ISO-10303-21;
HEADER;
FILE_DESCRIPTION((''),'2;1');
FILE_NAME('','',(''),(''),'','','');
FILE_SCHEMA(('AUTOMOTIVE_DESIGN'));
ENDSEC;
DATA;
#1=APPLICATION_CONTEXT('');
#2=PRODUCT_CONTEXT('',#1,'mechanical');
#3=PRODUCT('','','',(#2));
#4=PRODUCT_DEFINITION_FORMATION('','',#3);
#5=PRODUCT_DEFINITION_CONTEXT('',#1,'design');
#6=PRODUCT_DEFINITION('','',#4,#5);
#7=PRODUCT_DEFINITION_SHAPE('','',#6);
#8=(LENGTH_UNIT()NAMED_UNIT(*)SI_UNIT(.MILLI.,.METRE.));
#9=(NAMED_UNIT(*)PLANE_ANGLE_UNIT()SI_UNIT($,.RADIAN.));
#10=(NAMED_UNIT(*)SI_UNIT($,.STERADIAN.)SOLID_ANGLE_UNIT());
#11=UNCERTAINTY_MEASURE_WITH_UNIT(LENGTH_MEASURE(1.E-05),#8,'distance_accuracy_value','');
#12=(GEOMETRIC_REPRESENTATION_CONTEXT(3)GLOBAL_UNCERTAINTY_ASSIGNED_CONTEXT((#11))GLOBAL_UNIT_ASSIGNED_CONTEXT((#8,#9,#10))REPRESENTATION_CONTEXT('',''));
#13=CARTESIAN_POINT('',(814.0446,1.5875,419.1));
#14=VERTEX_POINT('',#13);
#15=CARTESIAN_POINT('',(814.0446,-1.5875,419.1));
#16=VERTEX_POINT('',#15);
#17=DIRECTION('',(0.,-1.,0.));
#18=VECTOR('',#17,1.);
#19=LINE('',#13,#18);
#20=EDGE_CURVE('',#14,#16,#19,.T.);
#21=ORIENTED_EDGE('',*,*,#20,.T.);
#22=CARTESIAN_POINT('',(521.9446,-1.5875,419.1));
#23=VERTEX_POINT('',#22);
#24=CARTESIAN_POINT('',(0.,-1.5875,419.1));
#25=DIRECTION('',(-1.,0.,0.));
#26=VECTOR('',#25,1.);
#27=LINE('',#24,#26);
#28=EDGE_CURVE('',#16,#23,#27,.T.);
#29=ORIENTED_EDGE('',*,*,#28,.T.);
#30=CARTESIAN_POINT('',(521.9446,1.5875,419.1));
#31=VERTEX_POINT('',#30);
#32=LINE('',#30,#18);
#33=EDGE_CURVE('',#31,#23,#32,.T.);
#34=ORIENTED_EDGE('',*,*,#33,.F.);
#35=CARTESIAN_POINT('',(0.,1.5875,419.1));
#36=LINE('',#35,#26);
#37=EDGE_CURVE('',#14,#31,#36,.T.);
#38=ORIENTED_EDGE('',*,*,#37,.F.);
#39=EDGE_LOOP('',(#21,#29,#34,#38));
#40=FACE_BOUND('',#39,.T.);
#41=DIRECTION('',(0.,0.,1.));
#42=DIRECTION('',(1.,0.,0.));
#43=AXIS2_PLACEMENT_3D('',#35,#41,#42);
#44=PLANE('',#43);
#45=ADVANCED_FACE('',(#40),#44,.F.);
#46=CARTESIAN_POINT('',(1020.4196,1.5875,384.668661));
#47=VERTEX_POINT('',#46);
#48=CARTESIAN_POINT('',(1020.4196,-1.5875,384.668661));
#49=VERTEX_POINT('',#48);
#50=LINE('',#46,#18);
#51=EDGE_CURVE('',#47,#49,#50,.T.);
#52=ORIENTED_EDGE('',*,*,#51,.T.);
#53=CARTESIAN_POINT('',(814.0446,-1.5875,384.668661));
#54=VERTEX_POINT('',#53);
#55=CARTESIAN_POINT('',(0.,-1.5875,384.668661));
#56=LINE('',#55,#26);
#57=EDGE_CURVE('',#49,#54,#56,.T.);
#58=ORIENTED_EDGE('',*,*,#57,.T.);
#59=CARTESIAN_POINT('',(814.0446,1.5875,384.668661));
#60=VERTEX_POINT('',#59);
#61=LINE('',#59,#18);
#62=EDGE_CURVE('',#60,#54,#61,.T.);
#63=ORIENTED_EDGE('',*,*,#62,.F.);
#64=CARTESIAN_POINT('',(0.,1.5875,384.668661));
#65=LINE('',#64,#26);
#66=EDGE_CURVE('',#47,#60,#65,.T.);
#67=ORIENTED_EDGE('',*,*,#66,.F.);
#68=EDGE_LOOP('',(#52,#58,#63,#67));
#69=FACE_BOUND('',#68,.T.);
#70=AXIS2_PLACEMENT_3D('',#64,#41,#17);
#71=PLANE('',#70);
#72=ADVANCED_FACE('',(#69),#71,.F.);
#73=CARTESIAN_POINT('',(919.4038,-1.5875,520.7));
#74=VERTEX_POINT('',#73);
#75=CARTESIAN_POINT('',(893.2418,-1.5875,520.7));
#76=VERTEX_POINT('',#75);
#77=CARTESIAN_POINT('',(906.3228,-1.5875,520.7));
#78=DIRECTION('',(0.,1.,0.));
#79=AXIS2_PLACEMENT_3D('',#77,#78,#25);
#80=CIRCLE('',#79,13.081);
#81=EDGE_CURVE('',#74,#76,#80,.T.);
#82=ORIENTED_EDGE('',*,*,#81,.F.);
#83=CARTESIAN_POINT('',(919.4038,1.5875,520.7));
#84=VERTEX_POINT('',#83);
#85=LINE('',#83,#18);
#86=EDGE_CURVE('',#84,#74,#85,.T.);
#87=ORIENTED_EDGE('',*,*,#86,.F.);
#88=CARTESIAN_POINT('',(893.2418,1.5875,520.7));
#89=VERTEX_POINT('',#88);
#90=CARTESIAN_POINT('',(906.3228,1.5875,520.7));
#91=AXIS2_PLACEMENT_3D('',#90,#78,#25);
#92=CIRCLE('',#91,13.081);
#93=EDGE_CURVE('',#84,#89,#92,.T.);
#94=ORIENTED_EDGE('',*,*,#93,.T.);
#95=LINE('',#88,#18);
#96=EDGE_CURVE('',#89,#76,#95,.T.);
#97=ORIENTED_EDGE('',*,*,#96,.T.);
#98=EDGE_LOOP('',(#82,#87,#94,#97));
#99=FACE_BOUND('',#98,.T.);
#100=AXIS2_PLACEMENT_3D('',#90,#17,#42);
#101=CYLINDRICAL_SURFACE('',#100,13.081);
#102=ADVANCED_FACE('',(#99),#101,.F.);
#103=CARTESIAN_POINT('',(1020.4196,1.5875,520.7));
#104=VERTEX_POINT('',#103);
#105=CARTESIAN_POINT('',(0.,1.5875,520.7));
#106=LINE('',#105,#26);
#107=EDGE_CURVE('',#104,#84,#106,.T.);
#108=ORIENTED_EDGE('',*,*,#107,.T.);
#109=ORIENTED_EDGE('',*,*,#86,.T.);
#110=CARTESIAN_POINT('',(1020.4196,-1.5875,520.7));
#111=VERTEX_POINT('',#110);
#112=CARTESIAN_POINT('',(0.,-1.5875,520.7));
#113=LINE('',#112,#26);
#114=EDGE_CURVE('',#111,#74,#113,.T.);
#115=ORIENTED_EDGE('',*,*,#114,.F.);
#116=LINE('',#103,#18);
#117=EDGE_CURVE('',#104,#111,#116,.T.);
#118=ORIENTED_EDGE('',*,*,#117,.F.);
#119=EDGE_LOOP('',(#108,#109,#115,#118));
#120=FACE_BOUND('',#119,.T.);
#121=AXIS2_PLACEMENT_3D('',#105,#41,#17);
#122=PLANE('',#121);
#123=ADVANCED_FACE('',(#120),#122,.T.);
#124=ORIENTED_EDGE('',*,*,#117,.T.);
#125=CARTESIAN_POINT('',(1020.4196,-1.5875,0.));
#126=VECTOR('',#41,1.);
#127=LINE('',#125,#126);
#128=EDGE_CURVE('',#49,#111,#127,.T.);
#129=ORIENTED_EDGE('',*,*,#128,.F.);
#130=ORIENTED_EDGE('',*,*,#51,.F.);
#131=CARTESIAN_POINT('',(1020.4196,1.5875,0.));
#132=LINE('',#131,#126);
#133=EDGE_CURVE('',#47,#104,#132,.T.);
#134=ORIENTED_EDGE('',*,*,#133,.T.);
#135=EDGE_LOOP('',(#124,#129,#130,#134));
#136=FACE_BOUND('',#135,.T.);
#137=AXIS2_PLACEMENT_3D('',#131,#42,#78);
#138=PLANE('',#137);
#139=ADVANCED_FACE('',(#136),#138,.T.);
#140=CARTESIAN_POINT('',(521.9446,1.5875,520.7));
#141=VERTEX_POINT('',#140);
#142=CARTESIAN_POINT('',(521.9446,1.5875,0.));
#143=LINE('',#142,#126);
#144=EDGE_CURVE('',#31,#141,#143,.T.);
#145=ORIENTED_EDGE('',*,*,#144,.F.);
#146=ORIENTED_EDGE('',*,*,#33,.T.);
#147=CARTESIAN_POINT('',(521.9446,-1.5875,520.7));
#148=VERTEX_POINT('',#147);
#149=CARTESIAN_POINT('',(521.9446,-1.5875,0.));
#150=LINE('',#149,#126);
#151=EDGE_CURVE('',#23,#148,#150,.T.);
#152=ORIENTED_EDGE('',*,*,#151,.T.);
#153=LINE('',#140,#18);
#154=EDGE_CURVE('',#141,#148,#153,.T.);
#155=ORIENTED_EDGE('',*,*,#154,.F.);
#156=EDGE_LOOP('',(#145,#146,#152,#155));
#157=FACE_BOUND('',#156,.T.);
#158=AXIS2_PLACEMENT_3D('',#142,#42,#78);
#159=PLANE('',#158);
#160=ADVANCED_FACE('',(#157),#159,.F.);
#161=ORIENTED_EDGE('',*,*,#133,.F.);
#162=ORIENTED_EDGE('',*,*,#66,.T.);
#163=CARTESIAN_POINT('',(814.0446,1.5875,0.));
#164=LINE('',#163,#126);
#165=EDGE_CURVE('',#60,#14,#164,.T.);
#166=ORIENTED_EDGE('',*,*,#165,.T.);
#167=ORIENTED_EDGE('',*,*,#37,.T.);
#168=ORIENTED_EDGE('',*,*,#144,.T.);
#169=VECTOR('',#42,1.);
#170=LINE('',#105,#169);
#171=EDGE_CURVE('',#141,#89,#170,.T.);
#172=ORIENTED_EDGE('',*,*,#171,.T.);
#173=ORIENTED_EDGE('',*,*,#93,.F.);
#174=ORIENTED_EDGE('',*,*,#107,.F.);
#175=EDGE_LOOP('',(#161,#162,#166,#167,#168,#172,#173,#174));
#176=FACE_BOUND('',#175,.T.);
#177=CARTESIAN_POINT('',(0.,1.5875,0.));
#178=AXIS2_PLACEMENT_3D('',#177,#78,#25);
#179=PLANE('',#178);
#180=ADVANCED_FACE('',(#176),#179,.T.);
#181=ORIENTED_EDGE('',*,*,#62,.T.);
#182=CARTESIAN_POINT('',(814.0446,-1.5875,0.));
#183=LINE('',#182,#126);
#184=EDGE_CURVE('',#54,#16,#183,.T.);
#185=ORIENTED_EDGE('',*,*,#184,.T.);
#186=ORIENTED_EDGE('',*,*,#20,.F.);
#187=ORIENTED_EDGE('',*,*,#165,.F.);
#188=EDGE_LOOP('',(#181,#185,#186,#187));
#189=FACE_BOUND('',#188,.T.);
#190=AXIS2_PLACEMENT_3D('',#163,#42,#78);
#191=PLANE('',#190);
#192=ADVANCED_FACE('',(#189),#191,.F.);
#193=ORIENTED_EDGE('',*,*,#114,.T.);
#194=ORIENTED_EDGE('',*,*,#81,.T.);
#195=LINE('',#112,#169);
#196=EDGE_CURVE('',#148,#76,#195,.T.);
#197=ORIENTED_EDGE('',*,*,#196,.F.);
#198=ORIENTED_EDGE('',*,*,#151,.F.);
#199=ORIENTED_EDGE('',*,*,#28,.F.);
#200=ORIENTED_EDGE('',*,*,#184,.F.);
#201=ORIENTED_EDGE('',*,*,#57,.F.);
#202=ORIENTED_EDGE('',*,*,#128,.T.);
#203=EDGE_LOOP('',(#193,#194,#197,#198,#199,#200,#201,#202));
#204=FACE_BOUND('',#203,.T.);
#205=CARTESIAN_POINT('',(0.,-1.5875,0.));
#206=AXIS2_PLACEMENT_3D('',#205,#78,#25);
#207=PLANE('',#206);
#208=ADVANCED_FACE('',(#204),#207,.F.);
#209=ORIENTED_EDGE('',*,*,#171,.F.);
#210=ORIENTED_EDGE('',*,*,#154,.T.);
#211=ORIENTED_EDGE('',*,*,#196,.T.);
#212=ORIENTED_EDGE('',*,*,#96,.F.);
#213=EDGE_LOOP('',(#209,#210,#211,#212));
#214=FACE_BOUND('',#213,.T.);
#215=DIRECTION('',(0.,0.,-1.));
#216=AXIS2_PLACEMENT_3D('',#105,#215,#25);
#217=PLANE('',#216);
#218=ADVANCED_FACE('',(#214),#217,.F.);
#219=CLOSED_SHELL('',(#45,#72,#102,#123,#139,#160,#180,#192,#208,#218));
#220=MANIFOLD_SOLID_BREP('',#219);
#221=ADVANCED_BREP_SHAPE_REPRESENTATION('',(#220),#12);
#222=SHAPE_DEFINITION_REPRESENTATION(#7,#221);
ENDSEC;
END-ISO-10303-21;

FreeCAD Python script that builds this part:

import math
import FreeCAD as App
import Part
import Sketcher
from FreeCAD import Vector
Q = App.Units.Quantity

doc = App.newDocument("Part")
body = doc.addObject("PartDesign::Body", "Body")

# Sketch on XZ plane
sketch1 = doc.addObject("Sketcher::SketchObject", "Sketch")
body.addObject(sketch1)
sketch1.AttachmentSupport = (doc.XZ_Plane, [""])
sketch1.MapMode = "FlatFace"
sketch1.addGeometry(Part.LineSegment(Vector(1020, 521, 0), Vector(1020, 385, 0)), False)
sketch1.addGeometry(Part.LineSegment(Vector(1020, 385, 0), Vector(814, 385, 0)), False)
sketch1.addGeometry(Part.LineSegment(Vector(814, 385, 0), Vector(814, 419, 0)), False)
sketch1.addGeometry(Part.LineSegment(Vector(814, 419, 0), Vector(522, 419, 0)), False)
sketch1.addGeometry(Part.LineSegment(Vector(522, 419, 0), Vector(522, 521, 0)), False)
sketch1.addGeometry(Part.LineSegment(Vector(522, 521, 0), Vector(893, 521, 0)), False)
sketch1.addGeometry(Part.ArcOfCircle(Part.Circle(Vector(906, 521, 0), Vector(0, 0, 1), 13), math.radians(180), math.radians(360)), False)
sketch1.addGeometry(Part.LineSegment(Vector(919, 521, 0), Vector(1020, 521, 0)), False)
sketch1.addConstraint(Sketcher.Constraint("Coincident", 0, 2, 1, 1))
sketch1.addConstraint(Sketcher.Constraint("Coincident", 1, 2, 2, 1))
sketch1.addConstraint(Sketcher.Constraint("Coincident", 2, 2, 3, 1))
sketch1.addConstraint(Sketcher.Constraint("Coincident", 3, 2, 4, 1))
sketch1.addConstraint(Sketcher.Constraint("Coincident", 4, 2, 5, 1))
sketch1.addConstraint(Sketcher.Constraint("Coincident", 5, 2, 6, 1))
sketch1.addConstraint(Sketcher.Constraint("Coincident", 6, 2, 7, 1))
sketch1.addConstraint(Sketcher.Constraint("Coincident", 7, 2, 0, 1))
sketch1.addConstraint(Sketcher.Constraint("Vertical", 0))
sketch1.addConstraint(Sketcher.Constraint("Horizontal", 1))
sketch1.addConstraint(Sketcher.Constraint("Vertical", 2))
sketch1.addConstraint(Sketcher.Constraint("Horizontal", 3))
sketch1.addConstraint(Sketcher.Constraint("Vertical", 4))
sketch1.addConstraint(Sketcher.Constraint("Horizontal", 5))
sketch1.addConstraint(Sketcher.Constraint("Horizontal", 7))
sketch1.addConstraint(Sketcher.Constraint("Horizontal", 6, 3, 4, 2))
sketch1.addConstraint(Sketcher.Constraint("Horizontal", 5, 2, 6, 2))
sketch1.addConstraint(Sketcher.Constraint("DistanceY", 4, 1, 4, 2, Q("4 in")))
sketch1.addConstraint(Sketcher.Constraint("DistanceX", 3, 2, 3, 1, Q("11.5 in")))
sketch1.addConstraint(Sketcher.Constraint("Radius", 6, Q("0.515 in")))
sketch1.addConstraint(Sketcher.Constraint("DistanceY", -1, 1, 6, 3, Q("20.5 in")))
sketch1.addConstraint(Sketcher.Constraint("DistanceX", 1, 2, 1, 1, Q("8.125 in")))
sketch1.addConstraint(Sketcher.Constraint("DistanceX", 5, 1, 5, 2, Q("14.618 in")))
sketch1.addConstraint(Sketcher.Constraint("DistanceX", -1, 1, 6, 3, Q("35.682 in")))
sketch1.addConstraint(Sketcher.Constraint("DistanceY", 0, 2, 0, 1, 136.031339))
pad1 = doc.addObject("PartDesign::Pad", "Pad")
body.addObject(pad1)
pad1.Profile = sketch1
pad1.Length = Q("0.125 in")
pad1.Midplane = True

doc.recompute()
